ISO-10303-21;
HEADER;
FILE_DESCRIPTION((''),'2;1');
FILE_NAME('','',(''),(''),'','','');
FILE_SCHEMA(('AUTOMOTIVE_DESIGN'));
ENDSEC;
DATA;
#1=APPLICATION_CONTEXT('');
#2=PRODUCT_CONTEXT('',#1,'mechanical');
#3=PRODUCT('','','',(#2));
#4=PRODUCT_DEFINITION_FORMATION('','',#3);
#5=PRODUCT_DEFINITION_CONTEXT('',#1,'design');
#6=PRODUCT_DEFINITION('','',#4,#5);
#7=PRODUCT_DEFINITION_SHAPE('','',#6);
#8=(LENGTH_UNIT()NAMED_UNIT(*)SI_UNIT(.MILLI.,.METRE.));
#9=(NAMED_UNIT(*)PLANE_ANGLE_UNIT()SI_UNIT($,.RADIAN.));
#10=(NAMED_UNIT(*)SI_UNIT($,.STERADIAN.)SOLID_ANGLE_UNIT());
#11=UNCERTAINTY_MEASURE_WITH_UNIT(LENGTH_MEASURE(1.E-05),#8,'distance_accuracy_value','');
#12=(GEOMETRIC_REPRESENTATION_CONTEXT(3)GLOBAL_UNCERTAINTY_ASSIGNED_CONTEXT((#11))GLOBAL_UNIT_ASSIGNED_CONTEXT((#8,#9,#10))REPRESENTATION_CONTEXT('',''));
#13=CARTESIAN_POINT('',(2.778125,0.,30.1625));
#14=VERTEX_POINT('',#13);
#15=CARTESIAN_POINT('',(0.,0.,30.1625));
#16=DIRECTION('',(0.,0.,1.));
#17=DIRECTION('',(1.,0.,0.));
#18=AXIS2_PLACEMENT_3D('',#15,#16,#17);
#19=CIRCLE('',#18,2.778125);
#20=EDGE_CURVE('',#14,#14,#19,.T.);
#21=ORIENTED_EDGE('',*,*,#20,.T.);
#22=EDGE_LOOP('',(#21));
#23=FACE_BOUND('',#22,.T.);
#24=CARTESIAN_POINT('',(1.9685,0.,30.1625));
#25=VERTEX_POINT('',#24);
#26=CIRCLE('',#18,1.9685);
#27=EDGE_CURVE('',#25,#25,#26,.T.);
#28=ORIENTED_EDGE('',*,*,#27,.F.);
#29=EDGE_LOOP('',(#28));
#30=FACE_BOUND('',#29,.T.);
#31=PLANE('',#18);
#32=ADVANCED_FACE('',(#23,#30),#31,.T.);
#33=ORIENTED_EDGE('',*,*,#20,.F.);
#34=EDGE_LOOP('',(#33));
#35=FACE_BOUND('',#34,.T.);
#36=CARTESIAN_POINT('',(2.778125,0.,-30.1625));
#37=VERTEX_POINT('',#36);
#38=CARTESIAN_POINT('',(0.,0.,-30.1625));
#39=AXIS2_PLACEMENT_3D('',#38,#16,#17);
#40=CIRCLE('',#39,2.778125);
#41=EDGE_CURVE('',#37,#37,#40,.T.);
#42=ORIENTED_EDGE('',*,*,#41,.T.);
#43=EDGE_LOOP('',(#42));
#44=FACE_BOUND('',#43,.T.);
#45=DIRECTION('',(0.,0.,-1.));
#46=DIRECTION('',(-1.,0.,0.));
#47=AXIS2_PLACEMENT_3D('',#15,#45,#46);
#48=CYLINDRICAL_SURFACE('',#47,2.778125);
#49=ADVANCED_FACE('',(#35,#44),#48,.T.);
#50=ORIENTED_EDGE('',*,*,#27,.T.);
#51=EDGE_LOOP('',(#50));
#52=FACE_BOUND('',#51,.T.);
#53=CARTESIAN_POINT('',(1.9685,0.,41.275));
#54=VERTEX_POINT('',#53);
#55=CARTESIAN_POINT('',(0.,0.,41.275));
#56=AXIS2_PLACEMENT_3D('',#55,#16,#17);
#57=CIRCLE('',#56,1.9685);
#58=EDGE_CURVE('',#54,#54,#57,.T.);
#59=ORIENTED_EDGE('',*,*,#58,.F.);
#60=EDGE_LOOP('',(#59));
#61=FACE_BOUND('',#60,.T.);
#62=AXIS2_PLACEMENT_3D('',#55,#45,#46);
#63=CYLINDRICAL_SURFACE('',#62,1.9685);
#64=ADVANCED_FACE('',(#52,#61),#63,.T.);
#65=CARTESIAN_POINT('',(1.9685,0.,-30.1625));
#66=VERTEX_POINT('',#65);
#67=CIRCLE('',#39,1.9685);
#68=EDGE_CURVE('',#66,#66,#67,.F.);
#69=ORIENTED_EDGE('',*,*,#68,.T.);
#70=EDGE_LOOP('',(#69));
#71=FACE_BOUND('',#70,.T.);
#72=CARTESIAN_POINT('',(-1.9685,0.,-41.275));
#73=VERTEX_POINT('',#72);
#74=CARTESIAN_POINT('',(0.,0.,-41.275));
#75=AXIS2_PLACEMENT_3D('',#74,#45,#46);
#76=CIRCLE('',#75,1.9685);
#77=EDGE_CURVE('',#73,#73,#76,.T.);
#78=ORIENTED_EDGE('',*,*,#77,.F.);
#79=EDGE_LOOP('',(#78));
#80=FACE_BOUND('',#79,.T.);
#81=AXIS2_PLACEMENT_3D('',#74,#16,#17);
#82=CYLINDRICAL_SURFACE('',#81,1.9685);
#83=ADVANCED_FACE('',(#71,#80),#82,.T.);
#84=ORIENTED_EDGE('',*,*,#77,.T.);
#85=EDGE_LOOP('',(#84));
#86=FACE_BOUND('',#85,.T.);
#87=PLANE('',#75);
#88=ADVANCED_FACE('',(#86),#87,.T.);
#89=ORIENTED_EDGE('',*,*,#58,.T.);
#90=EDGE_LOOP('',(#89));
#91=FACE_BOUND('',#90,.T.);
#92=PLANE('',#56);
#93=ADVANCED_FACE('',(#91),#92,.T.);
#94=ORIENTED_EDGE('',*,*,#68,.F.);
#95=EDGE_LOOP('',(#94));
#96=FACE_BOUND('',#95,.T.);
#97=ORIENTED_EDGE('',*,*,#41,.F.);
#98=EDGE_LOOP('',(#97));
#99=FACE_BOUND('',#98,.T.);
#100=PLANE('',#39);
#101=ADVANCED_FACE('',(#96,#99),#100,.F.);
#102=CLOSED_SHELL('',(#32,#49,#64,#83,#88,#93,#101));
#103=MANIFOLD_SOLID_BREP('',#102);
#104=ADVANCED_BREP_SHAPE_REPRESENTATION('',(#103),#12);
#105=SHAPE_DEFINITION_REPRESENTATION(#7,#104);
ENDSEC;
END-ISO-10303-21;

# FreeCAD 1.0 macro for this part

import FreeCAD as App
import Part
import Sketcher
Q = App.Units.Quantity

doc = App.newDocument("Part")
body = doc.addObject("PartDesign::Body", "Body")

sketch1 = body.newObject("Sketcher::SketchObject", "Sketch")
sketch1.AttachmentSupport = (doc.getObject("XY_Plane"), [""])
sketch1.MapMode = "FlatFace"
sketch1.addGeometry(Part.Circle(App.Vector(0, 0, 0), App.Vector(0, 0, 1), 2.778125), False)
sketch1.addConstraint([
    Sketcher.Constraint("Coincident", 0, 3, -1, 1),
    Sketcher.Constraint("Diameter", 0, Q("0.21875 in")),
])
pad1 = body.newObject("PartDesign::Pad", "Pad")
pad1.Profile = sketch1
pad1.Length = Q("2.375 in")
pad1.Midplane = True

sketch2 = body.newObject("Sketcher::SketchObject", "Sketch001")
sketch2.AttachmentSupport = (doc.getObject("XY_Plane"), [""])
sketch2.MapMode = "FlatFace"
sketch2.AttachmentOffset = App.Placement(App.Vector(0, 0, 1.1875 * 25.4), App.Rotation())
sketch2.addGeometry(Part.Circle(App.Vector(0, 0, 0), App.Vector(0, 0, 1), 1.9685), False)
sketch2.addConstraint([
    Sketcher.Constraint("Coincident", 0, 3, -1, 1),
    Sketcher.Constraint("Diameter", 0, Q("0.155 in")),
])
pad2 = body.newObject("PartDesign::Pad", "Pad001")
pad2.Profile = sketch2
pad2.Length = Q("0.4375 in")

sketch3 = body.newObject("Sketcher::SketchObject", "Sketch002")
sketch3.AttachmentSupport = (doc.getObject("XY_Plane"), [""])
sketch3.MapMode = "FlatFace"
sketch3.AttachmentOffset = App.Placement(App.Vector(0, 0, -1.1875 * 25.4), App.Rotation())
sketch3.addGeometry(Part.Circle(App.Vector(0, 0, 0), App.Vector(0, 0, 1), 1.9685), False)
sketch3.addConstraint([
    Sketcher.Constraint("Coincident", 0, 3, -1, 1),
    Sketcher.Constraint("Diameter", 0, Q("0.155 in")),
])
pad3 = body.newObject("PartDesign::Pad", "Pad002")
pad3.Profile = sketch3
pad3.Length = Q("0.4375 in")
pad3.Reversed = True

doc.recompute()
